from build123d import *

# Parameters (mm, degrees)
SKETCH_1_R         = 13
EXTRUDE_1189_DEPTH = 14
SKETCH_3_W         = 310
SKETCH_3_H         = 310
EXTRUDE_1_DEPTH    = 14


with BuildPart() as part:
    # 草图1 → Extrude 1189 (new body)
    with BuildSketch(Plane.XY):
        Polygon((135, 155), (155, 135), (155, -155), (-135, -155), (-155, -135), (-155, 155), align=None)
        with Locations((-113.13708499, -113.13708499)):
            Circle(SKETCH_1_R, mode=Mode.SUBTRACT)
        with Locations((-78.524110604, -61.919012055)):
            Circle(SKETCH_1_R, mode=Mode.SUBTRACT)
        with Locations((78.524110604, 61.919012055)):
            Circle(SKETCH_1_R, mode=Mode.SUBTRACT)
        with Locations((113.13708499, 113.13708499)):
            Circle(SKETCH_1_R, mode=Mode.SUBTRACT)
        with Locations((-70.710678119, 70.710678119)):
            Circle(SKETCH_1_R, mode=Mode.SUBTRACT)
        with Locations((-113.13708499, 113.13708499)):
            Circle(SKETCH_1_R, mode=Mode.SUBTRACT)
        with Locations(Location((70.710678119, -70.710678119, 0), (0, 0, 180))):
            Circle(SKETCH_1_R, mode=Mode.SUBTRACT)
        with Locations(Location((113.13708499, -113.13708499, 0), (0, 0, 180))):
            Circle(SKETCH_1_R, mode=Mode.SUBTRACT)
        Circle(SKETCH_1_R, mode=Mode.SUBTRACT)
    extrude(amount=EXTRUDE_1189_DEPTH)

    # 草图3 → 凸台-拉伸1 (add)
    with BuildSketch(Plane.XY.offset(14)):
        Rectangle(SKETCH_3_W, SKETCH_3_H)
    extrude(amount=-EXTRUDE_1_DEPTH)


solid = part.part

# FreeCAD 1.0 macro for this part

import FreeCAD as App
import Part
import Sketcher

V = App.Vector
Q = App.Units.Quantity


def add_polygon(sketch, points):
    """Adds a closed chain of lines whose ends are joined by coincident constraints."""
    first, n = sketch.GeometryCount, len(points)
    for a, b in zip(points, points[1:] + points[:1]):
        sketch.addGeometry(Part.LineSegment(App.Vector(*a, 0), App.Vector(*b, 0)), False)
    for i in range(n):
        sketch.addConstraint(Sketcher.Constraint("Coincident", first + i, 2, first + (i + 1) % n, 1))

doc = App.newDocument("Part")
params = doc.addObject("Spreadsheet::Sheet", "Params")
for row, (alias, value) in enumerate([
    ("sketch1_diameter", "26 mm"),
    ("sketch1_width", "290 mm"),
    ("pad1_length", "14 mm"),
    ("sketch2_width", "310 mm"),
    ("pad2_length", "14 mm"),
], start=1):
    params.set(f"A{row}", alias)
    params.set(f"B{row}", "=" + value)
    params.setAlias(f"B{row}", alias)

body = doc.addObject("PartDesign::Body", "Body")

sketch1 = doc.addObject("Sketcher::SketchObject", "Sketch")
body.addObject(sketch1)
sketch1.AttachmentSupport = (doc.XY_Plane, [""])
sketch1.MapMode = "FlatFace"
add_polygon(sketch1, [(155, 135), (135, 155), (-155, 155), (-155, -135), (-135, -155), (155, -155)])
sketch1.addGeometry(Part.Circle(V(113, -113, 0), V(0, 0, 1), 13), False)
sketch1.addGeometry(Part.Circle(V(71, -71, 0), V(0, 0, 1), 13), False)
sketch1.addGeometry(Part.Circle(V(-113, -113, 0), V(0, 0, 1), 13), False)
sketch1.addGeometry(Part.Circle(V(-79, -62, 0), V(0, 0, 1), 13), False)
sketch1.addGeometry(Part.Circle(V(79, 62, 0), V(0, 0, 1), 13), False)
sketch1.addGeometry(Part.Circle(V(113, 113, 0), V(0, 0, 1), 13), False)
sketch1.addGeometry(Part.Circle(V(0, 0, 0), V(0, 0, 1), 13), False)
sketch1.addGeometry(Part.Circle(V(-71, 71, 0), V(0, 0, 1), 13), False)
sketch1.addGeometry(Part.Circle(V(-113, 113, 0), V(0, 0, 1), 13), False)
sketch1.addConstraint([
    Sketcher.Constraint("Horizontal", 1),
    Sketcher.Constraint("Vertical", 2),
    Sketcher.Constraint("Horizontal", 4),
    Sketcher.Constraint("Vertical", 5),
    Sketcher.Constraint("Coincident", 12, 3, -1, 1),
    Sketcher.Constraint("Equal", 6, 7),
    Sketcher.Constraint("Equal", 7, 8),
    Sketcher.Constraint("Equal", 8, 9),
    Sketcher.Constraint("Equal", 9, 10),
    Sketcher.Constraint("Equal", 10, 11),
    Sketcher.Constraint("Equal", 11, 12),
    Sketcher.Constraint("Equal", 12, 13),
    Sketcher.Constraint("Equal", 13, 14),
    Sketcher.Constraint("Symmetric", 9, 3, 10, 3, -1, 1),
    Sketcher.Constraint("Symmetric", 8, 3, 11, 3, -1, 1),
    Sketcher.Constraint("Symmetric", 7, 3, 13, 3, -1, 1),
    Sketcher.Constraint("Symmetric", 6, 3, 14, 3, -1, 1),
    Sketcher.Constraint("Symmetric", 0, 2, 3, 2, -1, 1),
    Sketcher.Constraint("Symmetric", 2, 2, 5, 2, -1, 1),
    Sketcher.Constraint("Symmetric", 6, 3, 8, 3, -2),
    Sketcher.Constraint("Equal", 4, 2),
    Sketcher.Constraint("Diameter", 6, 26.0),
    Sketcher.Constraint("DistanceX", 1, 2, 1, 1, 290.0),
    Sketcher.Constraint("Angle", 0, Q("135 deg")),
    Sketcher.Constraint("DistanceX", -1, 1, 0, 2, 135.0),
    Sketcher.Constraint("DistanceX", -1, 1, 7, 3, 70.710678),
    Sketcher.Constraint("DistanceY", 7, 3, -1, 1, 70.710678),
    Sketcher.Constraint("DistanceX", 9, 3, -1, 1, 78.524111),
    Sketcher.Constraint("DistanceX", 8, 3, 6, 3, 226.27417),
    Sketcher.Constraint("DistanceY", 7, 3, 10, 3, 132.62969),
    Sketcher.Constraint("DistanceY", 6, 3, 11, 3, 226.27417),
])
sketch1.setExpression("Constraints[27]", "Params.sketch1_diameter")
sketch1.setExpression("Constraints[28]", "Params.sketch1_width")
pad1 = doc.addObject("PartDesign::Pad", "Pad")
body.addObject(pad1)
pad1.Profile = sketch1
pad1.setExpression("Length", "Params.pad1_length")

sketch2 = doc.addObject("Sketcher::SketchObject", "Sketch001")
body.addObject(sketch2)
sketch2.AttachmentSupport = (doc.XY_Plane, [""])
sketch2.MapMode = "FlatFace"
sketch2.AttachmentOffset = App.Placement(V(0, 0, 14), App.Rotation())
add_polygon(sketch2, [(-155, 155), (-155, -155), (155, -155), (155, 155)])
sketch2.addConstraint([
    Sketcher.Constraint("Vertical", 0),
    Sketcher.Constraint("Horizontal", 1),
    Sketcher.Constraint("Vertical", 2),
    Sketcher.Constraint("Horizontal", 3),
    Sketcher.Constraint("Symmetric", 0, 2, 2, 2, -1, 1),
    Sketcher.Constraint("Equal", 3, 0),
    Sketcher.Constraint("DistanceX", 1, 1, 1, 2, 310.0),
])
sketch2.setExpression("Constraints[10]", "Params.sketch2_width")
pad2 = doc.addObject("PartDesign::Pad", "Pad001")
body.addObject(pad2)
pad2.Profile = sketch2
pad2.setExpression("Length", "Params.pad2_length")
pad2.Reversed = True

doc.recompute()
